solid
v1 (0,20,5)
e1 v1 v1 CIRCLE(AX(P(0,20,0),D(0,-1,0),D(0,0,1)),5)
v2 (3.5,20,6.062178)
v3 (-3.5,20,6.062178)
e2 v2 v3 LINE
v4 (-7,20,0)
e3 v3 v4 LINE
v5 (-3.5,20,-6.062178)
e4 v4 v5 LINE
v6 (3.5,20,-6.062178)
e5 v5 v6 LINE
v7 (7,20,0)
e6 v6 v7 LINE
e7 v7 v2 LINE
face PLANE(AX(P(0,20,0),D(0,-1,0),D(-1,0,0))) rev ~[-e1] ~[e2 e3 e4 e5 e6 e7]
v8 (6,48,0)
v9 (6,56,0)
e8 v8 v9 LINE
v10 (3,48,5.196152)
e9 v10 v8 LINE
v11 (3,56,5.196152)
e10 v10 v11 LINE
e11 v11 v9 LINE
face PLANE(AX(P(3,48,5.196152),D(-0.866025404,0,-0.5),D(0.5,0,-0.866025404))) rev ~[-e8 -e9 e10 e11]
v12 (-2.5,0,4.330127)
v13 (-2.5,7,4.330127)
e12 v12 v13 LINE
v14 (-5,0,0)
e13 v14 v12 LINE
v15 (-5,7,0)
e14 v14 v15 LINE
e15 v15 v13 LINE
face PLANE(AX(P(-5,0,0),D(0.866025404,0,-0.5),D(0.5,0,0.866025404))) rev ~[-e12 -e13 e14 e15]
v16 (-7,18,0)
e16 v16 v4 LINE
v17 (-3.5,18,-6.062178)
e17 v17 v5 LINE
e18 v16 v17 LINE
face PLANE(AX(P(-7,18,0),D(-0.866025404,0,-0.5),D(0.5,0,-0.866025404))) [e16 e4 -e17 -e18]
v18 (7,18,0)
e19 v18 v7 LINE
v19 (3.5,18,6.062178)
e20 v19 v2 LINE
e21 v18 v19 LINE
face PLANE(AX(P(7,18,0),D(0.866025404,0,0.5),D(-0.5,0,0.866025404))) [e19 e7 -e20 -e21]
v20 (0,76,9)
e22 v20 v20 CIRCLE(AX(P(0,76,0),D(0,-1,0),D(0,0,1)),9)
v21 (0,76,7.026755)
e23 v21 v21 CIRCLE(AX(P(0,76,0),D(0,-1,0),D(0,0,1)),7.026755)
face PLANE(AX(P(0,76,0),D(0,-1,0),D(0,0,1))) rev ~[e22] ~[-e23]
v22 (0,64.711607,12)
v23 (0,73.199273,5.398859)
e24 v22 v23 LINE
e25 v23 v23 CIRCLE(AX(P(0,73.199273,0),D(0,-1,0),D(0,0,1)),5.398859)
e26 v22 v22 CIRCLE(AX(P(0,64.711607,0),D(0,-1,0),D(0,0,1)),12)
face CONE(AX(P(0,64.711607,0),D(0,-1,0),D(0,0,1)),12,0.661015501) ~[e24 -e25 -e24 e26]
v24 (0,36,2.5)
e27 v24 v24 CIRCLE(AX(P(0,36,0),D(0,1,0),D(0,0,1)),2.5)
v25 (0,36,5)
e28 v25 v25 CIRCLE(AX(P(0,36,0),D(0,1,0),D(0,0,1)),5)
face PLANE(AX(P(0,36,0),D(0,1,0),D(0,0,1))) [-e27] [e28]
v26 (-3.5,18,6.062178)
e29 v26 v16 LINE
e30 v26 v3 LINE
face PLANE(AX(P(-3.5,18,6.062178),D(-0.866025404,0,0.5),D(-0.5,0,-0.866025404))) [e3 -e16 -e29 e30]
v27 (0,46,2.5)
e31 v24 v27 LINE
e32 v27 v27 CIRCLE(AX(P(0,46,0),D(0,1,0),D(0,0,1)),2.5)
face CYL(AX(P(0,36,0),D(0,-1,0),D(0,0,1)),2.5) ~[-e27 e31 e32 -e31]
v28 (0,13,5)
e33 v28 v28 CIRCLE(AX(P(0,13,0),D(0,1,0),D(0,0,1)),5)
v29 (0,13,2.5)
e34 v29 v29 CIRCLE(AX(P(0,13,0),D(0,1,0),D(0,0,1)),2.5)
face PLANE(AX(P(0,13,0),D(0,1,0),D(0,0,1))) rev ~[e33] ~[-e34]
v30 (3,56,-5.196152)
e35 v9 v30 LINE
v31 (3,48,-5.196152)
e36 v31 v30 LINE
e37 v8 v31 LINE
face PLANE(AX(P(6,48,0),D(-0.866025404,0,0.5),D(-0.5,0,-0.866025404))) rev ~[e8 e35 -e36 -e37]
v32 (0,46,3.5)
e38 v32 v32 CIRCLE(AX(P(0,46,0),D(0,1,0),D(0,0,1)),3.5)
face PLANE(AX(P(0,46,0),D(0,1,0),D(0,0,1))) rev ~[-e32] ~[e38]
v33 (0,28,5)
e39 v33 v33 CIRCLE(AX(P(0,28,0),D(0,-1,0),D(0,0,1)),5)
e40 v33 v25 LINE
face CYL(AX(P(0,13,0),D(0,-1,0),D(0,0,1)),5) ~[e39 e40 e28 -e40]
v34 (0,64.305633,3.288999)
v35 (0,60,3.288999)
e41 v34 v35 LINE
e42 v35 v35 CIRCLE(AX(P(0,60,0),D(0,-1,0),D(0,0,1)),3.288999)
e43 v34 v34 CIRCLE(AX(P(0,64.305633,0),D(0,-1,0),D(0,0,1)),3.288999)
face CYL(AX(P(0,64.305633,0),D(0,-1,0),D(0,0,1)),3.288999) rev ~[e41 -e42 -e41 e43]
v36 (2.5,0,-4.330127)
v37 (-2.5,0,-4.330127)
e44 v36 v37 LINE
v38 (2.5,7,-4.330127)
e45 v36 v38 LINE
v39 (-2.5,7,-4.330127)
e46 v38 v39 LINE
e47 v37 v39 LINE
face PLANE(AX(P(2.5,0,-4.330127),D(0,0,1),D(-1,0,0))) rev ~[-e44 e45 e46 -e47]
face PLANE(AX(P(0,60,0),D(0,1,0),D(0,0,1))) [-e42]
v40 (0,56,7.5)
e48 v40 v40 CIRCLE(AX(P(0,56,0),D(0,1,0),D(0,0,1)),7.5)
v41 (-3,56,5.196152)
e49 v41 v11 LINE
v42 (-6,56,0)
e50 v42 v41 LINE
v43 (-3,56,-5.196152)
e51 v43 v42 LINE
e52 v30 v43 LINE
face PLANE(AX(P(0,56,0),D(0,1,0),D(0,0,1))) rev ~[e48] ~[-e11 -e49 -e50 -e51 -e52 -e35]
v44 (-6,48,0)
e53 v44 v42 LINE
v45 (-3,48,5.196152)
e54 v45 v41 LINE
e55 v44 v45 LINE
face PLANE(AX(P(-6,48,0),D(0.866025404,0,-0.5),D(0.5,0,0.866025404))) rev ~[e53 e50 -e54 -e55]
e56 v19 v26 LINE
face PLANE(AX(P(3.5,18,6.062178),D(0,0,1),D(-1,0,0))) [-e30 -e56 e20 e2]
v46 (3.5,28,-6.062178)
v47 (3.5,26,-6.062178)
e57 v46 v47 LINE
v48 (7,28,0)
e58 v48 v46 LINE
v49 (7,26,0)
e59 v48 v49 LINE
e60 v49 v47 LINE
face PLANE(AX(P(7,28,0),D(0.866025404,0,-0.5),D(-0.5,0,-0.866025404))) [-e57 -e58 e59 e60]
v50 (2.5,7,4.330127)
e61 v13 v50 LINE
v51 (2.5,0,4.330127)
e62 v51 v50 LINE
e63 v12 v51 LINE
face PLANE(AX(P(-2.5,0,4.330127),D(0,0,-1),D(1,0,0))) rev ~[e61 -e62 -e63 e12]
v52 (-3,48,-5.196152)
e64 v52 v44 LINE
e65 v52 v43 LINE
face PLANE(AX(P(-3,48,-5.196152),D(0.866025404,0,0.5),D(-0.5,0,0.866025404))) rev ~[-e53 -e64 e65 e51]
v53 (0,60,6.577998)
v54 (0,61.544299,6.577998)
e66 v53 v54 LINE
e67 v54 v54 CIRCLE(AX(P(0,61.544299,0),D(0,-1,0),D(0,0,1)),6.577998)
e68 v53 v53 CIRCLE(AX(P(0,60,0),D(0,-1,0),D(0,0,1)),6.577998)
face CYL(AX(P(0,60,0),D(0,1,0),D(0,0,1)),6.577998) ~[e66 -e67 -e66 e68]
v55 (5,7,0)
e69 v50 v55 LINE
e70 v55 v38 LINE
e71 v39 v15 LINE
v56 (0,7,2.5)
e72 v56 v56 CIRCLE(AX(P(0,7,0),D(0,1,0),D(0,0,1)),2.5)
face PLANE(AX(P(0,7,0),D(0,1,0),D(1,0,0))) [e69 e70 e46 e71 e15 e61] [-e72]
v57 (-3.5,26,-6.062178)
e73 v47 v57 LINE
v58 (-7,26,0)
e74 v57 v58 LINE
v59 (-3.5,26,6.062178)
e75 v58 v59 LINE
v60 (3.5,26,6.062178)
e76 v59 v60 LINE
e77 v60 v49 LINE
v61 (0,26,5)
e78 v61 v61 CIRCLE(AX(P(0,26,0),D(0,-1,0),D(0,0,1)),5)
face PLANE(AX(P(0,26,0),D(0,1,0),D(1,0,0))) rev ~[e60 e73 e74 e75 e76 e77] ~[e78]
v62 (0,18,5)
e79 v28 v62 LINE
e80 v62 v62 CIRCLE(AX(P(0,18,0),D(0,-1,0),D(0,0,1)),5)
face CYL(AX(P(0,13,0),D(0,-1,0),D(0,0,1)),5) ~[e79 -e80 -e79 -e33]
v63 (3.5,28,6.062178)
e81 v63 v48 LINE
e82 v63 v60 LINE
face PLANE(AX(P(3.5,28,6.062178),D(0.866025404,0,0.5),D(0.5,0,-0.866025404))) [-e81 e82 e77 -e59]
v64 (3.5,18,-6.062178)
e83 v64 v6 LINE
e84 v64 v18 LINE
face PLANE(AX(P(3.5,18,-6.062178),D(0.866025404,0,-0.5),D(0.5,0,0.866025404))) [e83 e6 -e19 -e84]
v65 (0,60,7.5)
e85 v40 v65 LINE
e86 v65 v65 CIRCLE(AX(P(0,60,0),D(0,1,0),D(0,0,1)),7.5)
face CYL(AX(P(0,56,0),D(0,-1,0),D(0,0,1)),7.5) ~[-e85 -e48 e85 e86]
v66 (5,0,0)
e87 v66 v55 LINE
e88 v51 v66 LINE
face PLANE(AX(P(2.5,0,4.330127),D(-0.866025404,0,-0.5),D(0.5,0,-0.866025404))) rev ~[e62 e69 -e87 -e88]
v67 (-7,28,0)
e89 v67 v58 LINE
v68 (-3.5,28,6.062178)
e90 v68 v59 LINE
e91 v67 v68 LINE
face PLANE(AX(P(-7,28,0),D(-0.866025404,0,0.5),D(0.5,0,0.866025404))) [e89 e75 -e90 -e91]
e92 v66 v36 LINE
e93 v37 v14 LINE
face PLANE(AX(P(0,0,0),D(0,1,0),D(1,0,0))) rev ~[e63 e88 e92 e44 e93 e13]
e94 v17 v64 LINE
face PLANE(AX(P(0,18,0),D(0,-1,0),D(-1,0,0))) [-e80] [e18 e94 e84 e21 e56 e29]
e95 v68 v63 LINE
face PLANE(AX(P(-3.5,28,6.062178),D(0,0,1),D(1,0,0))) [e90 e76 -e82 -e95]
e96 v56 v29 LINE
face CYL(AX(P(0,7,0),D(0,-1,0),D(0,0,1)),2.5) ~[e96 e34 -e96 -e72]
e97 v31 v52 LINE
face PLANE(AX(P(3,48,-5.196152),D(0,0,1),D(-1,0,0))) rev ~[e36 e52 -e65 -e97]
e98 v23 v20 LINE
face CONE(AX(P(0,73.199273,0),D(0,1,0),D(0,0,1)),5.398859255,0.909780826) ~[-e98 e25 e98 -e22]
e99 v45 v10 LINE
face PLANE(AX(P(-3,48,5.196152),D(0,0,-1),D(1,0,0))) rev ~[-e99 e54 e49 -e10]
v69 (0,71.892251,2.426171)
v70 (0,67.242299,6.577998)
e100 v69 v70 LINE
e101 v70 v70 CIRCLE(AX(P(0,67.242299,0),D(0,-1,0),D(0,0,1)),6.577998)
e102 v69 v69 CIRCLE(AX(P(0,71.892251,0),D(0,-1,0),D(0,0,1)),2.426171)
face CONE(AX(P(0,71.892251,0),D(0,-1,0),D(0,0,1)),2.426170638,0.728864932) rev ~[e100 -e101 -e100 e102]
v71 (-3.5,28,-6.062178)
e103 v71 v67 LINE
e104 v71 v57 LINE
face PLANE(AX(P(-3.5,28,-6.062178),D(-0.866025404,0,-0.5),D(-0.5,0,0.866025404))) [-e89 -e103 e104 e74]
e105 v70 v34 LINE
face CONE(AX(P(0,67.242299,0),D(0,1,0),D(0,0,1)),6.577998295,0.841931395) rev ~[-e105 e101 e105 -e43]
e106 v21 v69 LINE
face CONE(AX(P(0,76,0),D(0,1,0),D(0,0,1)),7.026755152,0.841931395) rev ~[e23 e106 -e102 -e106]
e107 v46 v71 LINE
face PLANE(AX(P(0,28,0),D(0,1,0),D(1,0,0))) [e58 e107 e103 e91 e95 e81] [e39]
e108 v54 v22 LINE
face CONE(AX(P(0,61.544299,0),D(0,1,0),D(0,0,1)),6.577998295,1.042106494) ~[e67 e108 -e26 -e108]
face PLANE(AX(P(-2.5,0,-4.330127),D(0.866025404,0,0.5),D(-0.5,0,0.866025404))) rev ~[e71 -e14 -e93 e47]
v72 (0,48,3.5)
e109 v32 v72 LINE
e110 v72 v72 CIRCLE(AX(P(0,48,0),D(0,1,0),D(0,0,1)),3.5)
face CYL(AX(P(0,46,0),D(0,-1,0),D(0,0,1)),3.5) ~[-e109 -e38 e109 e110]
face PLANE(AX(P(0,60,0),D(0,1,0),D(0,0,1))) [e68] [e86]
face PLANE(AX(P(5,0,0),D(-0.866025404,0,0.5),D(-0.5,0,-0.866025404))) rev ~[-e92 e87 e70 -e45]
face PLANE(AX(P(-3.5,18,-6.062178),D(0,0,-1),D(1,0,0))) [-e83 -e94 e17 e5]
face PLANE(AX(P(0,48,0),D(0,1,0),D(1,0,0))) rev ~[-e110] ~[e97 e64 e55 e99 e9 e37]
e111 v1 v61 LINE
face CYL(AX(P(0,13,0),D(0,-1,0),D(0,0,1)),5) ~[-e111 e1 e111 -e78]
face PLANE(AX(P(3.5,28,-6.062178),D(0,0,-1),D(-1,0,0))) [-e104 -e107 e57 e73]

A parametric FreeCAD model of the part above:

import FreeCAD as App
import Part
import Sketcher

V = App.Vector
Q = App.Units.Quantity


def add_polygon(sketch, points):
    """Adds a closed chain of lines whose ends are joined by coincident constraints."""
    first, n = sketch.GeometryCount, len(points)
    for a, b in zip(points, points[1:] + points[:1]):
        sketch.addGeometry(Part.LineSegment(App.Vector(*a, 0), App.Vector(*b, 0)), False)
    for i in range(n):
        sketch.addConstraint(Sketcher.Constraint("Coincident", first + i, 2, first + (i + 1) % n, 1))

doc = App.newDocument("Part")
body = doc.addObject("PartDesign::Body", "Body")

# Sketch on XZ plane
sketch1 = body.newObject("Sketcher::SketchObject", "Sketch")
sketch1.AttachmentSupport = (doc.getObject("XZ_Plane"), [""])
sketch1.MapMode = "FlatFace"
add_polygon(sketch1, [(-2.5, 4.330127), (2.5, 4.330127), (5, 0), (2.5, -4.330127), (-2.5, -4.330127), (-5, 0)])  # lines 0-5
sketch1.addConstraint(Sketcher.Constraint("Horizontal", 0))
sketch1.addConstraint(Sketcher.Constraint("Horizontal", 3))
sketch1.addConstraint(Sketcher.Constraint("Symmetric", 0, 2, 3, 2, -1, 1))
sketch1.addConstraint(Sketcher.Constraint("Symmetric", 1, 2, 4, 2, -1, 1))
sketch1.addConstraint(Sketcher.Constraint("PointOnObject", 1, 2, -1))
sketch1.addConstraint(Sketcher.Constraint("Parallel", 2, 5))
sketch1.addConstraint(Sketcher.Constraint("Vertical", 0, 2, 2, 2))
sketch1.addConstraint(Sketcher.Constraint("DistanceX", 0, 1, 0, 2, 5.0))
sketch1.addConstraint(Sketcher.Constraint("Angle", 1, Q("-60 deg")))
sketch1.addConstraint(Sketcher.Constraint("Distance", 1, 5.0))
pad1 = body.newObject("PartDesign::Pad", "Pad")
pad1.Profile = sketch1
pad1.Length = 7
pad1.Reversed = True

# Sketch on XZ plane
sketch2 = body.newObject("Sketcher::SketchObject", "Sketch001")
sketch2.AttachmentSupport = (doc.getObject("XZ_Plane"), [""])
sketch2.MapMode = "FlatFace"
sketch2.AttachmentOffset = App.Placement(V(0, 0, -7), App.Rotation())
sketch2.addGeometry(Part.Circle(V(0, 0, 0), V(0, 0, 1), 2.5), False)
sketch2.addConstraint(Sketcher.Constraint("Coincident", 0, 3, -1, 1))
sketch2.addConstraint(Sketcher.Constraint("Diameter", 0, 5.0))
pad2 = body.newObject("PartDesign::Pad", "Pad001")
pad2.Profile = sketch2
pad2.Length = 6
pad2.Reversed = True

# Sketch on XZ plane
sketch3 = body.newObject("Sketcher::SketchObject", "Sketch002")
sketch3.AttachmentSupport = (doc.getObject("XZ_Plane"), [""])
sketch3.MapMode = "FlatFace"
sketch3.AttachmentOffset = App.Placement(V(0, 0, -13), App.Rotation())
sketch3.addGeometry(Part.Circle(V(0, 0, 0), V(0, 0, 1), 5), False)
sketch3.addConstraint(Sketcher.Constraint("Coincident", 0, 3, -1, 1))
sketch3.addConstraint(Sketcher.Constraint("Diameter", 0, 10.0))
pad3 = body.newObject("PartDesign::Pad", "Pad002")
pad3.Profile = sketch3
pad3.Length = 23
pad3.Reversed = True

# Sketch on XZ plane
sketch4 = body.newObject("Sketcher::SketchObject", "Sketch003")
sketch4.AttachmentSupport = (doc.getObject("XZ_Plane"), [""])
sketch4.MapMode = "FlatFace"
sketch4.AttachmentOffset = App.Placement(V(0, 0, -18), App.Rotation())
add_polygon(sketch4, [(-3.5, 6.062178), (-7, 0), (-3.5, -6.062178), (3.5, -6.062178), (7, 0), (3.5, 6.062178)])  # lines 0-5
sketch4.addConstraint(Sketcher.Constraint("Horizontal", 2))
sketch4.addConstraint(Sketcher.Constraint("Horizontal", 5))
sketch4.addConstraint(Sketcher.Constraint("Symmetric", 0, 2, 3, 2, -1, 1))
sketch4.addConstraint(Sketcher.Constraint("Symmetric", 1, 2, 4, 2, -1, 1))
sketch4.addConstraint(Sketcher.Constraint("PointOnObject", 0, 2, -1))
sketch4.addConstraint(Sketcher.Constraint("Parallel", 0, 3))
sketch4.addConstraint(Sketcher.Constraint("Vertical", 2, 2, 4, 2))
sketch4.addConstraint(Sketcher.Constraint("DistanceX", 2, 1, 2, 2, 7.0))
sketch4.addConstraint(Sketcher.Constraint("Angle", 0, Q("-120 deg")))
sketch4.addConstraint(Sketcher.Constraint("Distance", 0, 7.0))
pad4 = body.newObject("PartDesign::Pad", "Pad003")
pad4.Profile = sketch4
pad4.Length = 2
pad4.Reversed = True

# Sketch on XZ plane
sketch5 = body.newObject("Sketcher::SketchObject", "Sketch004")
sketch5.AttachmentSupport = (doc.getObject("XZ_Plane"), [""])
sketch5.MapMode = "FlatFace"
sketch5.AttachmentOffset = App.Placement(V(0, 0, -28), App.Rotation())
add_polygon(sketch5, [(-3.5, 6.062178), (3.5, 6.062178), (7, 0), (3.5, -6.062178), (-3.5, -6.062178), (-7, 0)])  # lines 0-5
sketch5.addConstraint(Sketcher.Constraint("Horizontal", 0))
sketch5.addConstraint(Sketcher.Constraint("Horizontal", 3))
sketch5.addConstraint(Sketcher.Constraint("Symmetric", 0, 2, 3, 2, -1, 1))
sketch5.addConstraint(Sketcher.Constraint("Symmetric", 1, 2, 4, 2, -1, 1))
sketch5.addConstraint(Sketcher.Constraint("PointOnObject", 1, 2, -1))
sketch5.addConstraint(Sketcher.Constraint("Parallel", 2, 5))
sketch5.addConstraint(Sketcher.Constraint("Vertical", 0, 2, 2, 2))
sketch5.addConstraint(Sketcher.Constraint("DistanceX", 0, 1, 0, 2, 7.0))
sketch5.addConstraint(Sketcher.Constraint("Angle", 1, Q("-60 deg")))
sketch5.addConstraint(Sketcher.Constraint("Distance", 1, 7.0))
pad5 = body.newObject("PartDesign::Pad", "Pad004")
pad5.Profile = sketch5
pad5.Length = 2

# Sketch on XZ plane
sketch6 = body.newObject("Sketcher::SketchObject", "Sketch005")
sketch6.AttachmentSupport = (doc.getObject("XZ_Plane"), [""])
sketch6.MapMode = "FlatFace"
sketch6.AttachmentOffset = App.Placement(V(0, 0, -36), App.Rotation())
sketch6.addGeometry(Part.Circle(V(0, 0, 0), V(0, 0, 1), 2.5), False)
sketch6.addConstraint(Sketcher.Constraint("Coincident", 0, 3, -1, 1))
sketch6.addConstraint(Sketcher.Constraint("Diameter", 0, 5.0))
pad6 = body.newObject("PartDesign::Pad", "Pad005")
pad6.Profile = sketch6
pad6.Length = 10
pad6.Reversed = True

# Sketch on XZ plane
sketch7 = body.newObject("Sketcher::SketchObject", "Sketch006")
sketch7.AttachmentSupport = (doc.getObject("XZ_Plane"), [""])
sketch7.MapMode = "FlatFace"
sketch7.AttachmentOffset = App.Placement(V(0, 0, -46), App.Rotation())
sketch7.addGeometry(Part.Circle(V(0, 0, 0), V(0, 0, 1), 3.5), False)
sketch7.addConstraint(Sketcher.Constraint("Coincident", 0, 3, -1, 1))
sketch7.addConstraint(Sketcher.Constraint("Diameter", 0, 7.0))
pad7 = body.newObject("PartDesign::Pad", "Pad006")
pad7.Profile = sketch7
pad7.Length = 2
pad7.Reversed = True

# Sketch on XZ plane
sketch8 = body.newObject("Sketcher::SketchObject", "Sketch007")
sketch8.AttachmentSupport = (doc.getObject("XZ_Plane"), [""])
sketch8.MapMode = "FlatFace"
sketch8.AttachmentOffset = App.Placement(V(0, 0, -48), App.Rotation())
add_polygon(sketch8, [(-3, -5.196152), (-6, 0), (-3, 5.196152), (3, 5.196152), (6, 0), (3, -5.196152)])  # lines 0-5
sketch8.addConstraint(Sketcher.Constraint("Horizontal", 2))
sketch8.addConstraint(Sketcher.Constraint("Horizontal", 5))
sketch8.addConstraint(Sketcher.Constraint("Symmetric", 0, 2, 3, 2, -1, 1))
sketch8.addConstraint(Sketcher.Constraint("Symmetric", 1, 2, 4, 2, -1, 1))
sketch8.addConstraint(Sketcher.Constraint("PointOnObject", 0, 2, -1))
sketch8.addConstraint(Sketcher.Constraint("Parallel", 0, 3))
sketch8.addConstraint(Sketcher.Constraint("Vertical", 2, 2, 4, 2))
sketch8.addConstraint(Sketcher.Constraint("DistanceX", 2, 1, 2, 2, 6.0))
sketch8.addConstraint(Sketcher.Constraint("Angle", 0, Q("120 deg")))
sketch8.addConstraint(Sketcher.Constraint("Distance", 0, 6.0))
pad8 = body.newObject("PartDesign::Pad", "Pad007")
pad8.Profile = sketch8
pad8.Length = 8
pad8.Reversed = True

# Sketch on XZ plane
sketch9 = body.newObject("Sketcher::SketchObject", "Sketch008")
sketch9.AttachmentSupport = (doc.getObject("XZ_Plane"), [""])
sketch9.MapMode = "FlatFace"
sketch9.AttachmentOffset = App.Placement(V(0, 0, -56), App.Rotation())
sketch9.addGeometry(Part.Circle(V(0, 0, 0), V(0, 0, 1), 7.5), False)
sketch9.addConstraint(Sketcher.Constraint("Coincident", 0, 3, -1, 1))
sketch9.addConstraint(Sketcher.Constraint("Diameter", 0, 15.0))
pad9 = body.newObject("PartDesign::Pad", "Pad008")
pad9.Profile = sketch9
pad9.Length = 4
pad9.Reversed = True

# Sketch on YZ plane
sketch10 = body.newObject("Sketcher::SketchObject", "Sketch009")
sketch10.AttachmentSupport = (doc.getObject("YZ_Plane"), [""])
sketch10.MapMode = "FlatFace"
add_polygon(sketch10, [(64.305633, -3.288999), (60, -3.288999), (60, -6.577998), (61.544299, -6.577998), (64.711607, -12), (73.199273, -5.398859), (76, -9), (76, -7.026755), (71.892251, -2.426171), (67.242299, -6.577998)])  # lines 0-9
sketch10.addConstraint(Sketcher.Constraint("Horizontal", 0))
sketch10.addConstraint(Sketcher.Constraint("Vertical", 1))
sketch10.addConstraint(Sketcher.Constraint("Horizontal", 2))
sketch10.addConstraint(Sketcher.Constraint("Vertical", 6))
sketch10.addConstraint(Sketcher.Constraint("Perpendicular", 4, 5))
sketch10.addConstraint(Sketcher.Constraint("Perpendicular", 7, 8))
sketch10.addConstraint(Sketcher.Constraint("Perpendicular", 8, 9))
sketch10.addConstraint(Sketcher.Constraint("Horizontal", 2, 2, 8, 2))
sketch10.addConstraint(Sketcher.Constraint("DistanceX", -1, 1, 0, 2, 60.0))
sketch10.addConstraint(Sketcher.Constraint("DistanceY", 3, 2, -1, 1, 12.0))
sketch10.addConstraint(Sketcher.Constraint("DistanceX", -1, 1, 5, 2, 76.0))
sketch10.addConstraint(Sketcher.Constraint("DistanceY", 5, 2, -1, 1, 9.0))
sketch10.addConstraint(Sketcher.Constraint("DistanceY", 1, 2, 1, 1, 3.288999))
sketch10.addConstraint(Sketcher.Constraint("DistanceX", 2, 1, 2, 2, 1.544299))
sketch10.addConstraint(Sketcher.Constraint("DistanceY", 0, 2, -1, 1, 3.288999))
sketch10.addConstraint(Sketcher.Constraint("DistanceX", 2, 2, 8, 2, 5.698))
sketch10.addConstraint(Sketcher.Constraint("Distance", 5, 4.562049))
sketch10.addConstraint(Sketcher.Constraint("DistanceX", 0, 2, 0, 1, 4.305633))
sketch10.addConstraint(Sketcher.Constraint("DistanceY", 6, 1, 6, 2, 1.973245))
sketch10.addConstraint(Sketcher.Constraint("DistanceY", 4, 2, -1, 1, 5.398859))
revolution = body.newObject("PartDesign::Revolution", "Revolution")
revolution.Profile = sketch10
revolution.ReferenceAxis = (sketch10, ["H_Axis"])
revolution.Angle = 360

doc.recompute()
